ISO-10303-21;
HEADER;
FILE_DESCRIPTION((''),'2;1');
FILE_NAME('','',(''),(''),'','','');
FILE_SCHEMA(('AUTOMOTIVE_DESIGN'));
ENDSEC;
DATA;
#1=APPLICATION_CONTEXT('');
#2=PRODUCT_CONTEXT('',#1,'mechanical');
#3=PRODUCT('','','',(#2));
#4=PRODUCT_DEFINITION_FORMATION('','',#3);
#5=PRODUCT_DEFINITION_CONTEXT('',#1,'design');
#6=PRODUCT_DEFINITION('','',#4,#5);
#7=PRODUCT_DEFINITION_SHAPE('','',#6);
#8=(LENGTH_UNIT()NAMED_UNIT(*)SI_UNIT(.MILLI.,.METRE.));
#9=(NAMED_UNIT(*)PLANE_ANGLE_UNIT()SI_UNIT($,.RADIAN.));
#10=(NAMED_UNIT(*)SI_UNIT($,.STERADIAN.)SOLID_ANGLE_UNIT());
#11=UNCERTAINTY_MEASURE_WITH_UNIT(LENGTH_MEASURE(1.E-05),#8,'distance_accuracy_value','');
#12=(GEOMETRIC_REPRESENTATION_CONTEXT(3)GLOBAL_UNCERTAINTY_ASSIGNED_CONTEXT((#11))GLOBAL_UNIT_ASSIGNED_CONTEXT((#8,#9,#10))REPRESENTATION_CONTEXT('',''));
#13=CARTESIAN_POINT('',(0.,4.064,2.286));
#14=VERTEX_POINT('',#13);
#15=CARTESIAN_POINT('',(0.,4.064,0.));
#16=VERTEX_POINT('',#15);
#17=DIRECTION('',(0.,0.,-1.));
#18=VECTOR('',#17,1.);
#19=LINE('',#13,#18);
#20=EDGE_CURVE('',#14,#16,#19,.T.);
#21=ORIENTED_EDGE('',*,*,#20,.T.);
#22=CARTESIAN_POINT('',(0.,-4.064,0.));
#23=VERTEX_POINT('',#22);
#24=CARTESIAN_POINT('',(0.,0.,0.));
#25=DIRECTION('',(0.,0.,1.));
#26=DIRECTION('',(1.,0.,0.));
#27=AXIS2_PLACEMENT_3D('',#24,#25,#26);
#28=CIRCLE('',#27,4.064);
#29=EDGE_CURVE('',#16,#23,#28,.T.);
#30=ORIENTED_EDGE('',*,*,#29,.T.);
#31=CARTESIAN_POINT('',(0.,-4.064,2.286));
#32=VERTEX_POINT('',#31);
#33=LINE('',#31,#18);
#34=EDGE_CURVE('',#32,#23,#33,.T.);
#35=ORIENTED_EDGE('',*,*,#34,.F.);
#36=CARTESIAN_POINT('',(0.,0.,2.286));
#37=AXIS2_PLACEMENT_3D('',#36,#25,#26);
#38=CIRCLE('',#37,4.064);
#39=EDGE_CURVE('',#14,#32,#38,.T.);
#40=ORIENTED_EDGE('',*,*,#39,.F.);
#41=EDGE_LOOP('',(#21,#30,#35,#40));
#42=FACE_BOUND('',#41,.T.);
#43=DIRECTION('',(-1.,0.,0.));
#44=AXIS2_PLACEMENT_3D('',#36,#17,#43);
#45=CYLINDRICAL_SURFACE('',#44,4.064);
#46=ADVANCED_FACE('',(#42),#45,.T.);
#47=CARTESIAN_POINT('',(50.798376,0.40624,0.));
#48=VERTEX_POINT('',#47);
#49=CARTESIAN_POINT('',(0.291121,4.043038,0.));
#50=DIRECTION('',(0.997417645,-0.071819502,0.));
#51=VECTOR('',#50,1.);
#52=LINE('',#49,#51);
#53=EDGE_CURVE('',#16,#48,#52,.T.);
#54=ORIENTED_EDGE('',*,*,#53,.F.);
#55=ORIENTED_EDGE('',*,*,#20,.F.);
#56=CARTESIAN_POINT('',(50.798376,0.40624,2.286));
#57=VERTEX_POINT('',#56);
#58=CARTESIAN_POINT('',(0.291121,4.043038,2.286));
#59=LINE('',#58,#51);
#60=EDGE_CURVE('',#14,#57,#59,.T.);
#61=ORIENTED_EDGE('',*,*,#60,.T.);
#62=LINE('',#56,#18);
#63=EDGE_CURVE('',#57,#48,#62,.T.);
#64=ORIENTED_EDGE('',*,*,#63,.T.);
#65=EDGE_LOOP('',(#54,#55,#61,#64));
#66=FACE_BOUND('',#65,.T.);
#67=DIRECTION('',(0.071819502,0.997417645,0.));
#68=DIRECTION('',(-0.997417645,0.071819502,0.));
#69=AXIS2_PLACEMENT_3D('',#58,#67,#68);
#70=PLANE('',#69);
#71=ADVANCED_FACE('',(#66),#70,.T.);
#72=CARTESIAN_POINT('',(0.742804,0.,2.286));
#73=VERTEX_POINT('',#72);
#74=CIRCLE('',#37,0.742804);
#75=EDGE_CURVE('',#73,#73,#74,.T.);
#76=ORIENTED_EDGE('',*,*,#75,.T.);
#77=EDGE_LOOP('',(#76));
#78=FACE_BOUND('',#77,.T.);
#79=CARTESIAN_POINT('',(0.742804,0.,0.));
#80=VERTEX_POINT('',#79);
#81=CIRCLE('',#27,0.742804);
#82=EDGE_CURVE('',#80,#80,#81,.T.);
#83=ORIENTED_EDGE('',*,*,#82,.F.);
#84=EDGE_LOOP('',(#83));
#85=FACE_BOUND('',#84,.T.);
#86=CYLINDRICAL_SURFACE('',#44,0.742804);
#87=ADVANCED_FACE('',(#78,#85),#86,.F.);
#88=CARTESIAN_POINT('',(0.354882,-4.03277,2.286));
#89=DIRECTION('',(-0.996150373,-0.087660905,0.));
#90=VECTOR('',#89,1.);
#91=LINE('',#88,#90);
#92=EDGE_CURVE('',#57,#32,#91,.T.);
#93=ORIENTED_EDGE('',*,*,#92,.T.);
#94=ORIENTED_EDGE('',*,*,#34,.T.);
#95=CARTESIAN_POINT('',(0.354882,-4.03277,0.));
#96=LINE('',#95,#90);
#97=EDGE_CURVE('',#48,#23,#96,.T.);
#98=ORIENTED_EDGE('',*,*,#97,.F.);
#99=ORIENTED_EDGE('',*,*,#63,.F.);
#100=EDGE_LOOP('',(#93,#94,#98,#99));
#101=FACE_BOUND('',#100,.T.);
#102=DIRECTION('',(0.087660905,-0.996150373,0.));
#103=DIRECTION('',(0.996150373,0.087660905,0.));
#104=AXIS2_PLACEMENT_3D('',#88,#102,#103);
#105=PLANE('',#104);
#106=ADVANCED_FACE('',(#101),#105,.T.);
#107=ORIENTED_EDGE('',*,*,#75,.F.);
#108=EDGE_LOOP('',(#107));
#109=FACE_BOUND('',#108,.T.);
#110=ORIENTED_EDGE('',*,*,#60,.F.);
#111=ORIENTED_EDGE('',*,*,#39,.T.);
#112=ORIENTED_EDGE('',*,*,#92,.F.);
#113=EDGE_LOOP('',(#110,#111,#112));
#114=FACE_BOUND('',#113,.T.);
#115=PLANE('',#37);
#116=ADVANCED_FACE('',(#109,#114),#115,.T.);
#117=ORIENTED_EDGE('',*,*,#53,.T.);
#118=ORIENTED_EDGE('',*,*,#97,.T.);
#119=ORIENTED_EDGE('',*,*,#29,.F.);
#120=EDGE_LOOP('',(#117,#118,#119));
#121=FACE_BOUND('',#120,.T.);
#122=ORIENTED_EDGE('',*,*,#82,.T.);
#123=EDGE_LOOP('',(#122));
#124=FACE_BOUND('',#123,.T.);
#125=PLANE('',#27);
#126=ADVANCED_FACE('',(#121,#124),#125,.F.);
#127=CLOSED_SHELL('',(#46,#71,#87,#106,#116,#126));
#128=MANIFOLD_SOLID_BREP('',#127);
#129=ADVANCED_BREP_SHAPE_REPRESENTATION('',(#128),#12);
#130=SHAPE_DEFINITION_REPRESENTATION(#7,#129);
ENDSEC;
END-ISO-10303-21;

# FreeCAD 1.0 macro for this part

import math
import FreeCAD as App
import Part
import Sketcher
from FreeCAD import Vector
Q = App.Units.Quantity

doc = App.newDocument("Part")
body = doc.addObject("PartDesign::Body", "Body")

# Sketch on XY plane
sketch1 = body.newObject("Sketcher::SketchObject", "Sketch")
sketch1.AttachmentSupport = (doc.getObject("XY_Plane"), [""])
sketch1.MapMode = "FlatFace"
sketch1.addGeometry([
    Part.LineSegment(Vector(0.6, 4, 0), Vector(0, 4.1, 0)),  # 0
    Part.ArcOfCircle(Part.Circle(Vector(0, 0, 0), Vector(0, 0, 1), 4.1), math.radians(90), math.radians(270)),  # 1
    Part.LineSegment(Vector(0, -4.1, 0), Vector(0.7, -4, 0)),  # 2
    Part.LineSegment(Vector(0.7, -4, 0), Vector(50.8, 0.4, 0)),  # 3
    Part.LineSegment(Vector(50.8, 0.4, 0), Vector(0.6, 4, 0)),  # 4
    Part.Circle(Vector(0, 0, 0), Vector(0, 0, 1), 0.7),  # 5
], False)
sketch1.addConstraint([
    Sketcher.Constraint("Coincident", 0, 2, 1, 1),
    Sketcher.Constraint("Coincident", 1, 2, 2, 1),
    Sketcher.Constraint("Coincident", 2, 2, 3, 1),
    Sketcher.Constraint("Coincident", 3, 2, 4, 1),
    Sketcher.Constraint("Coincident", 4, 2, 0, 1),
    Sketcher.Constraint("Coincident", 1, 3, -1, 1),
    Sketcher.Constraint("Coincident", 5, 3, -1, 1),
    Sketcher.Constraint("PointOnObject", 0, 2, -2),
    Sketcher.Constraint("PointOnObject", 1, 2, -2),
    Sketcher.Constraint("Parallel", 2, 3),
    Sketcher.Constraint("Parallel", 0, 4),
    Sketcher.Constraint("Radius", 1, Q("0.16 in")),
    Sketcher.Constraint("Diameter", 5, Q("1.485608 mm")),
    Sketcher.Constraint("Distance", 0, Q("0.583749 mm")),
    Sketcher.Constraint("Distance", 3, Q("50.282178 mm")),
    Sketcher.Constraint("DistanceY", 2, 2, -1, 1, Q("4.001541 mm")),
    Sketcher.Constraint("DistanceY", -1, 1, 3, 2, Q("0.40624 mm")),
])
pad1 = body.newObject("PartDesign::Pad", "Pad")
pad1.Profile = sketch1
pad1.Length = Q("0.09 in")

doc.recompute()
